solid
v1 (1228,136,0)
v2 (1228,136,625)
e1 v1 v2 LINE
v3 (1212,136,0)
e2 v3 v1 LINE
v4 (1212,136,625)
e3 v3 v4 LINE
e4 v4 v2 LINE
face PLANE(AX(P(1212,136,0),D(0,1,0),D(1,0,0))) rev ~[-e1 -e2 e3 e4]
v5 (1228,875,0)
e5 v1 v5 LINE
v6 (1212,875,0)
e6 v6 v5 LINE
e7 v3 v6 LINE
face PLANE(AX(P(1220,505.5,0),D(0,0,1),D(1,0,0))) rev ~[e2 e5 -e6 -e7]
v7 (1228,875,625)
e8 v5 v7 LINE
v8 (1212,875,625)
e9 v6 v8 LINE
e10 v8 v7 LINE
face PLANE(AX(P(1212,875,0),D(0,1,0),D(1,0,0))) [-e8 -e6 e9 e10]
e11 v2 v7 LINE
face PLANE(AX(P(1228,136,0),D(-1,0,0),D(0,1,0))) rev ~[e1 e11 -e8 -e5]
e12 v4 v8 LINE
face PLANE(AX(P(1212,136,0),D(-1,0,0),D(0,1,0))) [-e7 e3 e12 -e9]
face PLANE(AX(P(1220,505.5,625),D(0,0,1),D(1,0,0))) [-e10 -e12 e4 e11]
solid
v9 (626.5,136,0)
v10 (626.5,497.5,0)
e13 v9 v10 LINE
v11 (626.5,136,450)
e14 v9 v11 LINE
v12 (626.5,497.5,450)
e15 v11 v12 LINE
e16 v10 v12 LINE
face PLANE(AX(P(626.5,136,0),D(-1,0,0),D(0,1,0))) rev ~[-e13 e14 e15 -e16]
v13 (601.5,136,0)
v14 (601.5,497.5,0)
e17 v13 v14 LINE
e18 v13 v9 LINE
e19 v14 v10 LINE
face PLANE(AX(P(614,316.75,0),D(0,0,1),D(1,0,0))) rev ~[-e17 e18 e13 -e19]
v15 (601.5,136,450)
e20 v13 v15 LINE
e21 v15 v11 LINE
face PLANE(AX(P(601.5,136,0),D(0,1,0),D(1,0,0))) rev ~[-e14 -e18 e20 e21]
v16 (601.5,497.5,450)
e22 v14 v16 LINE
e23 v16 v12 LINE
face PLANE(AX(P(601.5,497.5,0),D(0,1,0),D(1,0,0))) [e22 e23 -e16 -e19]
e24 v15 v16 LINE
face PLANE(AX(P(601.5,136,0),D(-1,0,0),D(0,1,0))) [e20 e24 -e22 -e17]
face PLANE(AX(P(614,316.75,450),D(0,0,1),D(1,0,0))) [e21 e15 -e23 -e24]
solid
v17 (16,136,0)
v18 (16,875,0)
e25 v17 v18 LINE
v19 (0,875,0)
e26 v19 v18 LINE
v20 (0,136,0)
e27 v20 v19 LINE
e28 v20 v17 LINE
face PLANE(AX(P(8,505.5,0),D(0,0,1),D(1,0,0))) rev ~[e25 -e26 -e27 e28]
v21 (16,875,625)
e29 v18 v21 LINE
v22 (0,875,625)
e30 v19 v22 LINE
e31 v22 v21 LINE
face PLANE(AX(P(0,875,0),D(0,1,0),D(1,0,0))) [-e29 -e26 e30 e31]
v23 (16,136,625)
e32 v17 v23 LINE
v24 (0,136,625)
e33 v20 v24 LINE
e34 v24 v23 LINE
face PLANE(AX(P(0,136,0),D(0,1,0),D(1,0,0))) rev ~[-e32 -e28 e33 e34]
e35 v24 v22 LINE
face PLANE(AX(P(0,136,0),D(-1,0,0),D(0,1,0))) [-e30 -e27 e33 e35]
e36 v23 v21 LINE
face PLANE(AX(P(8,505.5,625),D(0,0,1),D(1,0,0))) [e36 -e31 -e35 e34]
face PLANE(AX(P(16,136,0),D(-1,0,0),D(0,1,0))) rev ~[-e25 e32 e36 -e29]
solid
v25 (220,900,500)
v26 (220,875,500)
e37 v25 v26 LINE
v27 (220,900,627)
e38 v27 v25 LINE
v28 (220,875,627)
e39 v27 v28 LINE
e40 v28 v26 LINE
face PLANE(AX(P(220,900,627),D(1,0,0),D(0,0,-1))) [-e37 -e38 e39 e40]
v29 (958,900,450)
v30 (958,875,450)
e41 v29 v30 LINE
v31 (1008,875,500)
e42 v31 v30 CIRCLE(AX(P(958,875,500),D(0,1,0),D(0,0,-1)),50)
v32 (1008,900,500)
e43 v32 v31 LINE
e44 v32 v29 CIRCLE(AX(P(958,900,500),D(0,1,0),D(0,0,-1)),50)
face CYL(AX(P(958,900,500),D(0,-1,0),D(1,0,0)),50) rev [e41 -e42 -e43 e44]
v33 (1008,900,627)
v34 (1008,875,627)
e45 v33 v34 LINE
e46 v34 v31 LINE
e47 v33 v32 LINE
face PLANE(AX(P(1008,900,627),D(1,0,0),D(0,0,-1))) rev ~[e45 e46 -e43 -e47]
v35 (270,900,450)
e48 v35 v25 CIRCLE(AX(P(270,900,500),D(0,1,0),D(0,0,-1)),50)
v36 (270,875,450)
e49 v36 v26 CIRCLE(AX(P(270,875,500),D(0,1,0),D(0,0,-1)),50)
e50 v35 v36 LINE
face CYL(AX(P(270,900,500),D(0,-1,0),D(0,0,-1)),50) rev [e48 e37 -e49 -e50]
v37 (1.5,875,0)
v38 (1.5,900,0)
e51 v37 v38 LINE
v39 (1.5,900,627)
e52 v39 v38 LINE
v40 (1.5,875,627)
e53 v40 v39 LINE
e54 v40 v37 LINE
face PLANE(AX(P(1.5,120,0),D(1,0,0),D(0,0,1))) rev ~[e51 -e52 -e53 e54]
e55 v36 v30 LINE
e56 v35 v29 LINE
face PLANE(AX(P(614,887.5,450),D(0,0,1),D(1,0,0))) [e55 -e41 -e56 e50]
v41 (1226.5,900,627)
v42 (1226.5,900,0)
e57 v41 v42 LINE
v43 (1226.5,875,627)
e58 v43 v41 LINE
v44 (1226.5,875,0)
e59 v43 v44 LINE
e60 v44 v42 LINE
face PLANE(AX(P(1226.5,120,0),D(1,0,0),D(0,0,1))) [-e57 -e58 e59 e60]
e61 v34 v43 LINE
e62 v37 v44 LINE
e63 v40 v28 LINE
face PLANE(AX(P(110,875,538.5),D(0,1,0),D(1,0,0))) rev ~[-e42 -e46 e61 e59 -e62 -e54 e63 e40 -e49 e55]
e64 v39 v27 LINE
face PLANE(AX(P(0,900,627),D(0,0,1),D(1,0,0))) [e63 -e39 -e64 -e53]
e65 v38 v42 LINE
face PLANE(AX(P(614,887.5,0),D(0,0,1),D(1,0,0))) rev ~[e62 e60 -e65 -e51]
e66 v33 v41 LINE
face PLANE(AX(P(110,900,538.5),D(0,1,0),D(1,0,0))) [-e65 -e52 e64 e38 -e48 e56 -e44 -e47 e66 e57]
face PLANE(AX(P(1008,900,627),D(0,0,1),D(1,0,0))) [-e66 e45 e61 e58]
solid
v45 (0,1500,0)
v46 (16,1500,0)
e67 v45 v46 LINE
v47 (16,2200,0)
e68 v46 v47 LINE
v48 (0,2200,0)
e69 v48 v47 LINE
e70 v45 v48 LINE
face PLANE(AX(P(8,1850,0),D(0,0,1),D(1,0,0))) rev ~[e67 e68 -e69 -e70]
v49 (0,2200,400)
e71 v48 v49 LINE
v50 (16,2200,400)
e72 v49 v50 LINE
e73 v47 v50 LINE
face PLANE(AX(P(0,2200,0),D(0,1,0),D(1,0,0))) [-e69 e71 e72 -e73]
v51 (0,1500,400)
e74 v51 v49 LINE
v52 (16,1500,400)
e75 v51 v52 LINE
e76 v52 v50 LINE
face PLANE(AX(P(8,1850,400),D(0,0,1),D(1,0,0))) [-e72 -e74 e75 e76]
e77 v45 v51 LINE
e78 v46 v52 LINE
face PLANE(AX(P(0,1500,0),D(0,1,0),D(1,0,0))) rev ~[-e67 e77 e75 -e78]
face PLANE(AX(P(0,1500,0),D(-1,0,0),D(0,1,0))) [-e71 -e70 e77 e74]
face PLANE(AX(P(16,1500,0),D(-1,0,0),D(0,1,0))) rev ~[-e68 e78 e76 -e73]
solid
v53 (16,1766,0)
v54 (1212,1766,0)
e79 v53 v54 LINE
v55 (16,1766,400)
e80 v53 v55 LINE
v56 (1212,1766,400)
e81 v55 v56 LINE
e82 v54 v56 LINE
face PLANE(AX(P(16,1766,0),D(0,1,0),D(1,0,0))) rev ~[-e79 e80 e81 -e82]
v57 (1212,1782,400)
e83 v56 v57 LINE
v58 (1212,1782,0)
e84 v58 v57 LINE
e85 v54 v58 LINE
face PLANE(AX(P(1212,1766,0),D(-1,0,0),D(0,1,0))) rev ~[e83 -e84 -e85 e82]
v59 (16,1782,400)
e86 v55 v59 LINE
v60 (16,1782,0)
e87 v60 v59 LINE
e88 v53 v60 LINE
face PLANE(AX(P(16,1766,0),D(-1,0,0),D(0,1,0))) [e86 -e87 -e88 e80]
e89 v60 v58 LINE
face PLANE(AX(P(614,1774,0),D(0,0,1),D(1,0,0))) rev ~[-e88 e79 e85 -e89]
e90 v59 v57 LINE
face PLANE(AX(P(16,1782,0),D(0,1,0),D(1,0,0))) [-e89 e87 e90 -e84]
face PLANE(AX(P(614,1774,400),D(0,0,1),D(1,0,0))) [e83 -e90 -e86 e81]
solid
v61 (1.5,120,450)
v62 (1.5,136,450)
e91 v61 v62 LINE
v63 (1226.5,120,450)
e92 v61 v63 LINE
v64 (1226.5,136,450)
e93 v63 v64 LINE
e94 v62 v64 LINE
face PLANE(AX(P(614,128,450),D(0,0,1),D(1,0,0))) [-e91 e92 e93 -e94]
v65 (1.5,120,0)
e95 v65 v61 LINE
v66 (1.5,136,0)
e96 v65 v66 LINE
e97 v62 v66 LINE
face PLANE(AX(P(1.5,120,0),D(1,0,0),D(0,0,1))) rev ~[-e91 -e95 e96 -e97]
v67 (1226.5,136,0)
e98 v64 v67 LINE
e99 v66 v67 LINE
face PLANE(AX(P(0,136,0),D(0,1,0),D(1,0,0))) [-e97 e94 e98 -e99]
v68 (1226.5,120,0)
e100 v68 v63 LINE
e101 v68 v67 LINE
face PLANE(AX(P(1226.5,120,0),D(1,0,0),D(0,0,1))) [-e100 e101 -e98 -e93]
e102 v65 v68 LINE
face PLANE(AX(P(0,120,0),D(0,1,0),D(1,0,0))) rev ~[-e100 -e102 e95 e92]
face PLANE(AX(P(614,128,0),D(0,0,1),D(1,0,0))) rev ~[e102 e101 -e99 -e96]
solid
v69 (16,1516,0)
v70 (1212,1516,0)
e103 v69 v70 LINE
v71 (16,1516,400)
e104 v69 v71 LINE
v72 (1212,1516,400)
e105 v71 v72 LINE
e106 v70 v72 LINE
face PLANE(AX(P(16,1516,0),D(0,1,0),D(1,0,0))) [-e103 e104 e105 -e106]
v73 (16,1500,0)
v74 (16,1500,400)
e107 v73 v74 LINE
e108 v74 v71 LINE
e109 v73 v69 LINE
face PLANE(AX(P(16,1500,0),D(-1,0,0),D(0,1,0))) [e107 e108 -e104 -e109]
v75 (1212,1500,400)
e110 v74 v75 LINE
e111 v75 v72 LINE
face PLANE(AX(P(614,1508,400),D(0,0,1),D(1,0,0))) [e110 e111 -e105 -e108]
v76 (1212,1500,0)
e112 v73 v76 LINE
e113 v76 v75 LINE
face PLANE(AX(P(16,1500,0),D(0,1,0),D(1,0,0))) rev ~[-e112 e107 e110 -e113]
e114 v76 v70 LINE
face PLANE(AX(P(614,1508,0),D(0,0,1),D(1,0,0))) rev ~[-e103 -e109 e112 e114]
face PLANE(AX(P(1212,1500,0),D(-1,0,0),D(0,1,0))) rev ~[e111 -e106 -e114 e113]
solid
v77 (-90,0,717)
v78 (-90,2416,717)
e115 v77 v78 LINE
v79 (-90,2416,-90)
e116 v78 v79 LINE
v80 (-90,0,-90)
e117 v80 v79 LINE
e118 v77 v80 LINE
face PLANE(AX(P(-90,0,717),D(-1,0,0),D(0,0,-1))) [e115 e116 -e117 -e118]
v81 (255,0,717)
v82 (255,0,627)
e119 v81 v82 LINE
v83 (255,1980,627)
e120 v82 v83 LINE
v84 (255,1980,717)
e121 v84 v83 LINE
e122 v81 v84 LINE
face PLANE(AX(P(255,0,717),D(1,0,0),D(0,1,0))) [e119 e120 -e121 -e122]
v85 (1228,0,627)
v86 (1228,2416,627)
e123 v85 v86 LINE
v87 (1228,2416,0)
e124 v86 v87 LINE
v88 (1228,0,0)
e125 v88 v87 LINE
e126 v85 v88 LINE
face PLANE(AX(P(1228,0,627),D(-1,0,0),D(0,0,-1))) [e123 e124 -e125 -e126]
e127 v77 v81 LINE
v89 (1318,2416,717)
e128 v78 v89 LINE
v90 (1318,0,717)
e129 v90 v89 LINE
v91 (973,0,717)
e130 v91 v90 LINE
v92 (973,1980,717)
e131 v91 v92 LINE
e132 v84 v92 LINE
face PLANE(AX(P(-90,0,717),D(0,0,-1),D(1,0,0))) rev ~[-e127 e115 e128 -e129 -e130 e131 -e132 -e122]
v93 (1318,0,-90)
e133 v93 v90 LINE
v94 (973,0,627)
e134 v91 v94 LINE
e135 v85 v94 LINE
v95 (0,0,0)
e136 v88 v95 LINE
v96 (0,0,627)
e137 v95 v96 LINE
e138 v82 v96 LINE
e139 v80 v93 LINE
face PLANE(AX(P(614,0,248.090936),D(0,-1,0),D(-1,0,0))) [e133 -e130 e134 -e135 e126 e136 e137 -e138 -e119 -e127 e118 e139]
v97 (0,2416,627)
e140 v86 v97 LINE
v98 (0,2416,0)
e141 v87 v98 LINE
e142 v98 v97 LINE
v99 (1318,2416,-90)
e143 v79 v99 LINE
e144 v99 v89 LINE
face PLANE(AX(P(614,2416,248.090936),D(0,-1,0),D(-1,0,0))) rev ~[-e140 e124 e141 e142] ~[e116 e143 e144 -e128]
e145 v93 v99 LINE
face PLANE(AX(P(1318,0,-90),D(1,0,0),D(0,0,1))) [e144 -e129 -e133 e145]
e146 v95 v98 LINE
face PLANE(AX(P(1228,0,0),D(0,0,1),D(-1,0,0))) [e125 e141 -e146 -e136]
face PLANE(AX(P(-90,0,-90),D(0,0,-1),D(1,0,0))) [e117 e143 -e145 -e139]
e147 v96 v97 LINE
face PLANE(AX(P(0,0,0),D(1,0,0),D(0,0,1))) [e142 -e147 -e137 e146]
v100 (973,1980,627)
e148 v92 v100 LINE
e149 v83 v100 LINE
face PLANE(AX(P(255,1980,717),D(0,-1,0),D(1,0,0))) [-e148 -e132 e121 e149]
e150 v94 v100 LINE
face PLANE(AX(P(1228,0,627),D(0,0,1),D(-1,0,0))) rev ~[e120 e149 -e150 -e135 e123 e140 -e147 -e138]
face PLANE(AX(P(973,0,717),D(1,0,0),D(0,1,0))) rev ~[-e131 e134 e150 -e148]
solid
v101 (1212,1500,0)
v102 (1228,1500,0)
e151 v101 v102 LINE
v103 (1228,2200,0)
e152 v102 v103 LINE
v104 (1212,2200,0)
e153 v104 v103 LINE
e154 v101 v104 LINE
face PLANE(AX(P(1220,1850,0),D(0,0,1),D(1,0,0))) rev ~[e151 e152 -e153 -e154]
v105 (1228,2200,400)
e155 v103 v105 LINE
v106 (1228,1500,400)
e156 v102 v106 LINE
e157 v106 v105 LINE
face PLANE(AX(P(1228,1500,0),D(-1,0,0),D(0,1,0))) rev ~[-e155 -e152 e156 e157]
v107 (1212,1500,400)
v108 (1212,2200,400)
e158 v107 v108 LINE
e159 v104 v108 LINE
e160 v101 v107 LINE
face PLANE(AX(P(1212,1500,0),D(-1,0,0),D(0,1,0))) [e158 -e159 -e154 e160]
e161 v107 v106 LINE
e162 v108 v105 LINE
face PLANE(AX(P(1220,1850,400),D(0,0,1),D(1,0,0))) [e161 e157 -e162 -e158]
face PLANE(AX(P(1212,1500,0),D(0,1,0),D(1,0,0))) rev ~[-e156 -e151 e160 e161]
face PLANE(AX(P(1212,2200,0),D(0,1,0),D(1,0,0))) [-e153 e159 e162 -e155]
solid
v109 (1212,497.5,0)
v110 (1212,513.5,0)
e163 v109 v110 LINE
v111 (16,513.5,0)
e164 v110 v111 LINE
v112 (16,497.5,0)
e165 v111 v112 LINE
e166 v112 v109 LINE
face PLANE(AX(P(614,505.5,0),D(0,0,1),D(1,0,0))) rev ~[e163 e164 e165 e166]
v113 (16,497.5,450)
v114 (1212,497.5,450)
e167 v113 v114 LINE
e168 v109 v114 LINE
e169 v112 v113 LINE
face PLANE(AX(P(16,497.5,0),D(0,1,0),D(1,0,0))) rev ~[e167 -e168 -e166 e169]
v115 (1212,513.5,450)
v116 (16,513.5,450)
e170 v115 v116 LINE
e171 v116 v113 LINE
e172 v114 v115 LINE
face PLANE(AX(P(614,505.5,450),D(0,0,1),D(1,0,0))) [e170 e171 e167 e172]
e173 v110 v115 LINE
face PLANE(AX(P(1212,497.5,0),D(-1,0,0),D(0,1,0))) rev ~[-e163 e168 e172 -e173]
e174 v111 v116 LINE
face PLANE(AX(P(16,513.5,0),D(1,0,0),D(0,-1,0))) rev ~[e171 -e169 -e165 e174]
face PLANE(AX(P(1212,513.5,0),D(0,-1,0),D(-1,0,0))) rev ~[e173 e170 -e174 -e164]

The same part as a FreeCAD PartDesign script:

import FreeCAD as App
import Part
import Sketcher

V = App.Vector
Q = App.Units.Quantity


def edges_at(feature, points):
    """Names of the edges that pass closest to the given points."""
    edges = feature.Shape.Edges
    near = lambda p: min(range(len(edges)), key=lambda i: edges[i].distToShape(Part.Vertex(*p))[0])
    return sorted({f"Edge{near(p) + 1}" for p in points})

doc = App.newDocument("Part")
params = doc.addObject("Spreadsheet::Sheet", "Params")
for row, (alias, value) in enumerate([
    ("sketch1_width", "1408 mm"),
    ("sketch1_width2", "1228 mm"),
    ("sketch1_height", "807 mm"),
    ("sketch1_height2", "627 mm"),
    ("pad1_length", "2416 mm"),
    ("sketch2_width", "718 mm"),
    ("sketch2_height", "1980 mm"),
    ("pocket1_length", "100 mm"),
    ("sketch3_width", "16 mm"),
    ("sketch3_height", "739 mm"),
    ("pad2_length", "625 mm"),
    ("sketch4_width", "16 mm"),
    ("sketch4_height", "739 mm"),
    ("pad3_length", "625 mm"),
    ("sketch5_width", "25 mm"),
    ("sketch5_height", "361.5 mm"),
    ("pad4_length", "625 mm"),
    ("sketch6_width", "25 mm"),
    ("sketch6_height", "361.5 mm"),
    ("pocket2_length", "175 mm"),
    ("sketch7_width", "1228 mm"),
    ("sketch7_height", "16 mm"),
    ("pad5_length", "450 mm"),
    ("sketch8_width", "1196 mm"),
    ("sketch8_height", "16 mm"),
    ("pad6_length", "450 mm"),
    ("sketch9_width", "1228 mm"),
    ("sketch9_height", "25 mm"),
    ("pad7_length", "450 mm"),
    ("sketch10_width", "220 mm"),
    ("sketch10_height", "177 mm"),
    ("pad8_length", "25 mm"),
    ("fillet_radius", "50 mm"),
    ("sketch11_width", "16 mm"),
    ("sketch11_height", "700 mm"),
    ("pad9_length", "400 mm"),
    ("sketch12_width", "16 mm"),
    ("sketch12_height", "700 mm"),
    ("pad10_length", "400 mm"),
    ("sketch13_width", "1196 mm"),
    ("sketch13_height", "16 mm"),
    ("pad11_length", "400 mm"),
    ("sketch14_width", "1196 mm"),
    ("sketch14_height", "16 mm"),
    ("pad12_length", "400 mm"),
    ("sketch15_height", "627 mm"),
    ("sketch15_width", "1.5 mm"),
    ("pad13_length", "2743.777607 mm"),
], start=1):
    params.set(f"A{row}", alias)
    params.set(f"B{row}", "=" + value)
    params.setAlias(f"B{row}", alias)

body = doc.addObject("PartDesign::Body", "Body")

sketch1 = body.newObject("Sketcher::SketchObject", "Sketch")
sketch1.AttachmentSupport = (doc.getObject("XZ_Plane"), [""])
sketch1.MapMode = "FlatFace"
sketch1.addGeometry([
    Part.LineSegment(V(-90, 717, 0), V(1318, 717, 0)),
    Part.LineSegment(V(1318, 717, 0), V(1318, -90, 0)),
    Part.LineSegment(V(1318, -90, 0), V(-90, -90, 0)),
    Part.LineSegment(V(-90, -90, 0), V(-90, 717, 0)),
    Part.LineSegment(V(1228, 627, 0), V(0, 627, 0)),
    Part.LineSegment(V(0, 627, 0), V(0, 0, 0)),
    Part.LineSegment(V(0, 0, 0), V(1228, 0, 0)),
    Part.LineSegment(V(1228, 0, 0), V(1228, 627, 0)),
], False)
sketch1.addConstraint([
    Sketcher.Constraint("Coincident", 0, 2, 1, 1),
    Sketcher.Constraint("Coincident", 1, 2, 2, 1),
    Sketcher.Constraint("Coincident", 2, 2, 3, 1),
    Sketcher.Constraint("Coincident", 3, 2, 0, 1),
    Sketcher.Constraint("Coincident", 4, 2, 5, 1),
    Sketcher.Constraint("Coincident", 5, 2, 6, 1),
    Sketcher.Constraint("Coincident", 6, 2, 7, 1),
    Sketcher.Constraint("Coincident", 7, 2, 4, 1),
    Sketcher.Constraint("Horizontal", 0),
    Sketcher.Constraint("Vertical", 1),
    Sketcher.Constraint("Horizontal", 2),
    Sketcher.Constraint("Vertical", 3),
    Sketcher.Constraint("Horizontal", 4),
    Sketcher.Constraint("Vertical", 5),
    Sketcher.Constraint("Horizontal", 6),
    Sketcher.Constraint("Vertical", 7),
    Sketcher.Constraint("Coincident", 5, 2, -1, 1),
    Sketcher.Constraint("DistanceX", 0, 1, 0, 2, Q("1408 mm")),
    Sketcher.Constraint("DistanceX", 4, 2, 4, 1, Q("1228 mm")),
    Sketcher.Constraint("DistanceY", 1, 2, 1, 1, Q("807 mm")),
    Sketcher.Constraint("DistanceY", 5, 2, 5, 1, Q("627 mm")),
    Sketcher.Constraint("DistanceX", -1, 1, 0, 2, Q("1318 mm")),
    Sketcher.Constraint("DistanceY", -1, 1, 0, 2, Q("717 mm")),
])
sketch1.setExpression("Constraints[17]", "Params.sketch1_width")
sketch1.setExpression("Constraints[18]", "Params.sketch1_width2")
sketch1.setExpression("Constraints[19]", "Params.sketch1_height")
sketch1.setExpression("Constraints[20]", "Params.sketch1_height2")
pad1 = body.newObject("PartDesign::Pad", "Pad")
pad1.Profile = sketch1
pad1.setExpression("Length", "Params.pad1_length")
pad1.Reversed = True

sketch2 = body.newObject("Sketcher::SketchObject", "Sketch001")
sketch2.AttachmentSupport = (doc.getObject("XY_Plane"), [""])
sketch2.MapMode = "FlatFace"
sketch2.AttachmentOffset = App.Placement(V(0, 0, 717), App.Rotation())
sketch2.addGeometry([
    Part.LineSegment(V(255, 1980, 0), V(255, 0, 0)),
    Part.LineSegment(V(255, 0, 0), V(973, 0, 0)),
    Part.LineSegment(V(973, 0, 0), V(973, 1980, 0)),
    Part.LineSegment(V(973, 1980, 0), V(255, 1980, 0)),
], False)
sketch2.addConstraint([
    Sketcher.Constraint("Coincident", 0, 2, 1, 1),
    Sketcher.Constraint("Coincident", 1, 2, 2, 1),
    Sketcher.Constraint("Coincident", 2, 2, 3, 1),
    Sketcher.Constraint("Coincident", 3, 2, 0, 1),
    Sketcher.Constraint("Vertical", 0),
    Sketcher.Constraint("Horizontal", 1),
    Sketcher.Constraint("Vertical", 2),
    Sketcher.Constraint("Horizontal", 3),
    Sketcher.Constraint("PointOnObject", 0, 2, -1),
    Sketcher.Constraint("DistanceX", 1, 1, 1, 2, Q("718 mm")),
    Sketcher.Constraint("DistanceY", 0, 2, 0, 1, Q("1980 mm")),
    Sketcher.Constraint("DistanceX", -1, 1, 0, 2, Q("255 mm")),
])
sketch2.setExpression("Constraints[9]", "Params.sketch2_width")
sketch2.setExpression("Constraints[10]", "Params.sketch2_height")
pocket1 = body.newObject("PartDesign::Pocket", "Pocket")
pocket1.Profile = sketch2
pocket1.setExpression("Length", "Params.pocket1_length")
body2 = doc.addObject("PartDesign::Body", "Body001")

sketch3 = body2.newObject("Sketcher::SketchObject", "Sketch002")
sketch3.AttachmentSupport = (doc.getObject("XY_Plane001"), [""])
sketch3.MapMode = "FlatFace"
sketch3.addGeometry([
    Part.LineSegment(V(0, 875, 0), V(0, 136, 0)),
    Part.LineSegment(V(0, 136, 0), V(16, 136, 0)),
    Part.LineSegment(V(16, 136, 0), V(16, 875, 0)),
    Part.LineSegment(V(16, 875, 0), V(0, 875, 0)),
], False)
sketch3.addConstraint([
    Sketcher.Constraint("Coincident", 0, 2, 1, 1),
    Sketcher.Constraint("Coincident", 1, 2, 2, 1),
    Sketcher.Constraint("Coincident", 2, 2, 3, 1),
    Sketcher.Constraint("Coincident", 3, 2, 0, 1),
    Sketcher.Constraint("Vertical", 0),
    Sketcher.Constraint("Horizontal", 1),
    Sketcher.Constraint("Vertical", 2),
    Sketcher.Constraint("Horizontal", 3),
    Sketcher.Constraint("PointOnObject", 0, 2, -2),
    Sketcher.Constraint("DistanceX", 1, 1, 1, 2, Q("16 mm")),
    Sketcher.Constraint("DistanceY", 0, 2, 0, 1, Q("739 mm")),
    Sketcher.Constraint("DistanceY", -1, 1, 0, 2, Q("136 mm")),
])
sketch3.setExpression("Constraints[9]", "Params.sketch3_width")
sketch3.setExpression("Constraints[10]", "Params.sketch3_height")
pad2 = body2.newObject("PartDesign::Pad", "Pad001")
pad2.Profile = sketch3
pad2.setExpression("Length", "Params.pad2_length")
body3 = doc.addObject("PartDesign::Body", "Body002")

sketch4 = body3.newObject("Sketcher::SketchObject", "Sketch003")
sketch4.AttachmentSupport = (doc.getObject("XY_Plane002"), [""])
sketch4.MapMode = "FlatFace"
sketch4.addGeometry([
    Part.LineSegment(V(1212, 875, 0), V(1212, 136, 0)),
    Part.LineSegment(V(1212, 136, 0), V(1228, 136, 0)),
    Part.LineSegment(V(1228, 136, 0), V(1228, 875, 0)),
    Part.LineSegment(V(1228, 875, 0), V(1212, 875, 0)),
], False)
sketch4.addConstraint([
    Sketcher.Constraint("Coincident", 0, 2, 1, 1),
    Sketcher.Constraint("Coincident", 1, 2, 2, 1),
    Sketcher.Constraint("Coincident", 2, 2, 3, 1),
    Sketcher.Constraint("Coincident", 3, 2, 0, 1),
    Sketcher.Constraint("Vertical", 0),
    Sketcher.Constraint("Horizontal", 1),
    Sketcher.Constraint("Vertical", 2),
    Sketcher.Constraint("Horizontal", 3),
    Sketcher.Constraint("DistanceX", 1, 1, 1, 2, Q("16 mm")),
    Sketcher.Constraint("DistanceY", 0, 2, 0, 1, Q("739 mm")),
    Sketcher.Constraint("DistanceX", -1, 1, 0, 2, Q("1212 mm")),
    Sketcher.Constraint("DistanceY", -1, 1, 0, 2, Q("136 mm")),
])
sketch4.setExpression("Constraints[8]", "Params.sketch4_width")
sketch4.setExpression("Constraints[9]", "Params.sketch4_height")
pad3 = body3.newObject("PartDesign::Pad", "Pad002")
pad3.Profile = sketch4
pad3.setExpression("Length", "Params.pad3_length")
body4 = doc.addObject("PartDesign::Body", "Body003")

sketch5 = body4.newObject("Sketcher::SketchObject", "Sketch004")
sketch5.AttachmentSupport = (doc.getObject("XY_Plane003"), [""])
sketch5.MapMode = "FlatFace"
sketch5.addGeometry([
    Part.LineSegment(V(602, 498, 0), V(602, 136, 0)),
    Part.LineSegment(V(602, 136, 0), V(626, 136, 0)),
    Part.LineSegment(V(626, 136, 0), V(626, 498, 0)),
    Part.LineSegment(V(626, 498, 0), V(602, 498, 0)),
], False)
sketch5.addConstraint([
    Sketcher.Constraint("Coincident", 0, 2, 1, 1),
    Sketcher.Constraint("Coincident", 1, 2, 2, 1),
    Sketcher.Constraint("Coincident", 2, 2, 3, 1),
    Sketcher.Constraint("Coincident", 3, 2, 0, 1),
    Sketcher.Constraint("Vertical", 0),
    Sketcher.Constraint("Horizontal", 1),
    Sketcher.Constraint("Vertical", 2),
    Sketcher.Constraint("Horizontal", 3),
    Sketcher.Constraint("DistanceX", 1, 1, 1, 2, Q("25 mm")),
    Sketcher.Constraint("DistanceY", 0, 2, 0, 1, Q("361.5 mm")),
    Sketcher.Constraint("DistanceY", -1, 1, 0, 2, Q("136 mm")),
    Sketcher.Constraint("DistanceX", -1, 1, 0, 2, Q("601.5 mm")),
])
sketch5.setExpression("Constraints[8]", "Params.sketch5_width")
sketch5.setExpression("Constraints[9]", "Params.sketch5_height")
pad4 = body4.newObject("PartDesign::Pad", "Pad003")
pad4.Profile = sketch5
pad4.setExpression("Length", "Params.pad4_length")

sketch6 = body4.newObject("Sketcher::SketchObject", "Sketch005")
sketch6.AttachmentSupport = (doc.getObject("XY_Plane003"), [""])
sketch6.MapMode = "FlatFace"
sketch6.AttachmentOffset = App.Placement(V(0, 0, 625), App.Rotation())
sketch6.addGeometry([
    Part.LineSegment(V(602, 498, 0), V(602, 136, 0)),
    Part.LineSegment(V(602, 136, 0), V(626, 136, 0)),
    Part.LineSegment(V(626, 136, 0), V(626, 498, 0)),
    Part.LineSegment(V(626, 498, 0), V(602, 498, 0)),
], False)
sketch6.addConstraint([
    Sketcher.Constraint("Coincident", 0, 2, 1, 1),
    Sketcher.Constraint("Coincident", 1, 2, 2, 1),
    Sketcher.Constraint("Coincident", 2, 2, 3, 1),
    Sketcher.Constraint("Coincident", 3, 2, 0, 1),
    Sketcher.Constraint("Vertical", 0),
    Sketcher.Constraint("Horizontal", 1),
    Sketcher.Constraint("Vertical", 2),
    Sketcher.Constraint("Horizontal", 3),
    Sketcher.Constraint("DistanceX", 1, 1, 1, 2, Q("25 mm")),
    Sketcher.Constraint("DistanceY", 0, 2, 0, 1, Q("361.5 mm")),
    Sketcher.Constraint("DistanceY", -1, 1, 0, 2, Q("136 mm")),
    Sketcher.Constraint("DistanceX", -1, 1, 0, 2, Q("601.5 mm")),
])
sketch6.setExpression("Constraints[8]", "Params.sketch6_width")
sketch6.setExpression("Constraints[9]", "Params.sketch6_height")
pocket2 = body4.newObject("PartDesign::Pocket", "Pocket001")
pocket2.Profile = sketch6
pocket2.setExpression("Length", "Params.pocket2_length")
body5 = doc.addObject("PartDesign::Body", "Body004")

sketch7 = body5.newObject("Sketcher::SketchObject", "Sketch006")
sketch7.AttachmentSupport = (doc.getObject("XY_Plane004"), [""])
sketch7.MapMode = "FlatFace"
sketch7.addGeometry([
    Part.LineSegment(V(0, 136, 0), V(0, 120, 0)),
    Part.LineSegment(V(0, 120, 0), V(1228, 120, 0)),
    Part.LineSegment(V(1228, 120, 0), V(1228, 136, 0)),
    Part.LineSegment(V(1228, 136, 0), V(0, 136, 0)),
], False)
sketch7.addConstraint([
    Sketcher.Constraint("Coincident", 0, 2, 1, 1),
    Sketcher.Constraint("Coincident", 1, 2, 2, 1),
    Sketcher.Constraint("Coincident", 2, 2, 3, 1),
    Sketcher.Constraint("Coincident", 3, 2, 0, 1),
    Sketcher.Constraint("Vertical", 0),
    Sketcher.Constraint("Horizontal", 1),
    Sketcher.Constraint("Vertical", 2),
    Sketcher.Constraint("Horizontal", 3),
    Sketcher.Constraint("PointOnObject", 0, 2, -2),
    Sketcher.Constraint("DistanceX", 1, 1, 1, 2, Q("1228 mm")),
    Sketcher.Constraint("DistanceY", 0, 2, 0, 1, Q("16 mm")),
    Sketcher.Constraint("DistanceY", -1, 1, 0, 2, Q("120 mm")),
])
sketch7.setExpression("Constraints[9]", "Params.sketch7_width")
sketch7.setExpression("Constraints[10]", "Params.sketch7_height")
pad5 = body5.newObject("PartDesign::Pad", "Pad004")
pad5.Profile = sketch7
pad5.setExpression("Length", "Params.pad5_length")
body6 = doc.addObject("PartDesign::Body", "Body005")

sketch8 = body6.newObject("Sketcher::SketchObject", "Sketch007")
sketch8.AttachmentSupport = (doc.getObject("XY_Plane005"), [""])
sketch8.MapMode = "FlatFace"
sketch8.addGeometry([
    Part.LineSegment(V(16, 498, 0), V(1212, 498, 0)),
    Part.LineSegment(V(1212, 498, 0), V(1212, 514, 0)),
    Part.LineSegment(V(1212, 514, 0), V(16, 514, 0)),
    Part.LineSegment(V(16, 514, 0), V(16, 498, 0)),
], False)
sketch8.addConstraint([
    Sketcher.Constraint("Coincident", 0, 2, 1, 1),
    Sketcher.Constraint("Coincident", 1, 2, 2, 1),
    Sketcher.Constraint("Coincident", 2, 2, 3, 1),
    Sketcher.Constraint("Coincident", 3, 2, 0, 1),
    Sketcher.Constraint("Horizontal", 0),
    Sketcher.Constraint("Vertical", 1),
    Sketcher.Constraint("Horizontal", 2),
    Sketcher.Constraint("Vertical", 3),
    Sketcher.Constraint("DistanceX", 0, 1, 0, 2, Q("1196 mm")),
    Sketcher.Constraint("DistanceY", 1, 1, 1, 2, Q("16 mm")),
    Sketcher.Constraint("DistanceX", -1, 1, 0, 2, Q("1212 mm")),
    Sketcher.Constraint("DistanceY", -1, 1, 0, 2, Q("497.5 mm")),
])
sketch8.setExpression("Constraints[8]", "Params.sketch8_width")
sketch8.setExpression("Constraints[9]", "Params.sketch8_height")
pad6 = body6.newObject("PartDesign::Pad", "Pad005")
pad6.Profile = sketch8
pad6.setExpression("Length", "Params.pad6_length")
body7 = doc.addObject("PartDesign::Body", "Body006")

sketch9 = body7.newObject("Sketcher::SketchObject", "Sketch008")
sketch9.AttachmentSupport = (doc.getObject("XY_Plane006"), [""])
sketch9.MapMode = "FlatFace"
sketch9.addGeometry([
    Part.LineSegment(V(0, 900, 0), V(0, 875, 0)),
    Part.LineSegment(V(0, 875, 0), V(1228, 875, 0)),
    Part.LineSegment(V(1228, 875, 0), V(1228, 900, 0)),
    Part.LineSegment(V(1228, 900, 0), V(0, 900, 0)),
], False)
sketch9.addConstraint([
    Sketcher.Constraint("Coincident", 0, 2, 1, 1),
    Sketcher.Constraint("Coincident", 1, 2, 2, 1),
    Sketcher.Constraint("Coincident", 2, 2, 3, 1),
    Sketcher.Constraint("Coincident", 3, 2, 0, 1),
    Sketcher.Constraint("Vertical", 0),
    Sketcher.Constraint("Horizontal", 1),
    Sketcher.Constraint("Vertical", 2),
    Sketcher.Constraint("Horizontal", 3),
    Sketcher.Constraint("PointOnObject", 0, 2, -2),
    Sketcher.Constraint("DistanceX", 1, 1, 1, 2, Q("1228 mm")),
    Sketcher.Constraint("DistanceY", 0, 2, 0, 1, Q("25 mm")),
    Sketcher.Constraint("DistanceY", -1, 1, 0, 2, Q("875 mm")),
])
sketch9.setExpression("Constraints[9]", "Params.sketch9_width")
sketch9.setExpression("Constraints[10]", "Params.sketch9_height")
pad7 = body7.newObject("PartDesign::Pad", "Pad006")
pad7.Profile = sketch9
pad7.setExpression("Length", "Params.pad7_length")

sketch10 = body7.newObject("Sketcher::SketchObject", "Sketch009")
sketch10.AttachmentSupport = (doc.getObject("XZ_Plane006"), [""])
sketch10.MapMode = "FlatFace"
sketch10.AttachmentOffset = App.Placement(V(0, 0, -900), App.Rotation())
sketch10.addGeometry([
    Part.LineSegment(V(0, 450, 0), V(0, 627, 0)),
    Part.LineSegment(V(0, 627, 0), V(220, 627, 0)),
    Part.LineSegment(V(220, 627, 0), V(220, 450, 0)),
    Part.LineSegment(V(220, 450, 0), V(0, 450, 0)),
    Part.LineSegment(V(1008, 450, 0), V(1008, 627, 0)),
    Part.LineSegment(V(1008, 627, 0), V(1228, 627, 0)),
    Part.LineSegment(V(1228, 627, 0), V(1228, 450, 0)),
    Part.LineSegment(V(1228, 450, 0), V(1008, 450, 0)),
], False)
sketch10.addConstraint([
    Sketcher.Constraint("Coincident", 0, 2, 1, 1),
    Sketcher.Constraint("Coincident", 1, 2, 2, 1),
    Sketcher.Constraint("Coincident", 2, 2, 3, 1),
    Sketcher.Constraint("Coincident", 3, 2, 0, 1),
    Sketcher.Constraint("Coincident", 4, 2, 5, 1),
    Sketcher.Constraint("Coincident", 5, 2, 6, 1),
    Sketcher.Constraint("Coincident", 6, 2, 7, 1),
    Sketcher.Constraint("Coincident", 7, 2, 4, 1),
    Sketcher.Constraint("Vertical", 0),
    Sketcher.Constraint("Horizontal", 1),
    Sketcher.Constraint("Vertical", 2),
    Sketcher.Constraint("Horizontal", 3),
    Sketcher.Constraint("Vertical", 4),
    Sketcher.Constraint("Horizontal", 5),
    Sketcher.Constraint("Vertical", 6),
    Sketcher.Constraint("Horizontal", 7),
    Sketcher.Constraint("PointOnObject", 0, 2, -2),
    Sketcher.Constraint("Horizontal", 1, 2, 4, 2),
    Sketcher.Constraint("Horizontal", 3, 2, 6, 2),
    Sketcher.Constraint("Equal", 3, 5),
    Sketcher.Constraint("DistanceX", 1, 1, 1, 2, Q("220 mm")),
    Sketcher.Constraint("DistanceY", 0, 1, 0, 2, Q("177 mm")),
    Sketcher.Constraint("DistanceY", -1, 1, 0, 2, Q("627 mm")),
    Sketcher.Constraint("DistanceX", -1, 1, 4, 2, Q("1008 mm")),
])
sketch10.setExpression("Constraints[20]", "Params.sketch10_width")
sketch10.setExpression("Constraints[21]", "Params.sketch10_height")
pad8 = body7.newObject("PartDesign::Pad", "Pad007")
pad8.Profile = sketch10
pad8.setExpression("Length", "Params.pad8_length")
doc.recompute()

fillet = body7.newObject("PartDesign::Fillet", "Fillet")
fillet.Base = (pad8, edges_at(pad8, [(220, 887.5, 450), (1008, 887.5, 450)]))
fillet.setExpression("Radius", "Params.fillet_radius")
body8 = doc.addObject("PartDesign::Body", "Body007")

sketch11 = body8.newObject("Sketcher::SketchObject", "Sketch010")
sketch11.AttachmentSupport = (doc.getObject("XY_Plane007"), [""])
sketch11.MapMode = "FlatFace"
sketch11.addGeometry([
    Part.LineSegment(V(0, 2200, 0), V(0, 1500, 0)),
    Part.LineSegment(V(0, 1500, 0), V(16, 1500, 0)),
    Part.LineSegment(V(16, 1500, 0), V(16, 2200, 0)),
    Part.LineSegment(V(16, 2200, 0), V(0, 2200, 0)),
], False)
sketch11.addConstraint([
    Sketcher.Constraint("Coincident", 0, 2, 1, 1),
    Sketcher.Constraint("Coincident", 1, 2, 2, 1),
    Sketcher.Constraint("Coincident", 2, 2, 3, 1),
    Sketcher.Constraint("Coincident", 3, 2, 0, 1),
    Sketcher.Constraint("Vertical", 0),
    Sketcher.Constraint("Horizontal", 1),
    Sketcher.Constraint("Vertical", 2),
    Sketcher.Constraint("Horizontal", 3),
    Sketcher.Constraint("PointOnObject", 0, 2, -2),
    Sketcher.Constraint("DistanceX", 1, 1, 1, 2, Q("16 mm")),
    Sketcher.Constraint("DistanceY", 0, 2, 0, 1, Q("700 mm")),
    Sketcher.Constraint("DistanceY", -1, 1, 0, 2, Q("1500 mm")),
])
sketch11.setExpression("Constraints[9]", "Params.sketch11_width")
sketch11.setExpression("Constraints[10]", "Params.sketch11_height")
pad9 = body8.newObject("PartDesign::Pad", "Pad008")
pad9.Profile = sketch11
pad9.setExpression("Length", "Params.pad9_length")
body9 = doc.addObject("PartDesign::Body", "Body008")

sketch12 = body9.newObject("Sketcher::SketchObject", "Sketch011")
sketch12.AttachmentSupport = (doc.getObject("XY_Plane008"), [""])
sketch12.MapMode = "FlatFace"
sketch12.addGeometry([
    Part.LineSegment(V(1212, 2200, 0), V(1212, 1500, 0)),
    Part.LineSegment(V(1212, 1500, 0), V(1228, 1500, 0)),
    Part.LineSegment(V(1228, 1500, 0), V(1228, 2200, 0)),
    Part.LineSegment(V(1228, 2200, 0), V(1212, 2200, 0)),
], False)
sketch12.addConstraint([
    Sketcher.Constraint("Coincident", 0, 2, 1, 1),
    Sketcher.Constraint("Coincident", 1, 2, 2, 1),
    Sketcher.Constraint("Coincident", 2, 2, 3, 1),
    Sketcher.Constraint("Coincident", 3, 2, 0, 1),
    Sketcher.Constraint("Vertical", 0),
    Sketcher.Constraint("Horizontal", 1),
    Sketcher.Constraint("Vertical", 2),
    Sketcher.Constraint("Horizontal", 3),
    Sketcher.Constraint("DistanceX", 1, 1, 1, 2, Q("16 mm")),
    Sketcher.Constraint("DistanceY", 0, 2, 0, 1, Q("700 mm")),
    Sketcher.Constraint("DistanceX", -1, 1, 0, 2, Q("1212 mm")),
    Sketcher.Constraint("DistanceY", -1, 1, 0, 2, Q("1500 mm")),
])
sketch12.setExpression("Constraints[8]", "Params.sketch12_width")
sketch12.setExpression("Constraints[9]", "Params.sketch12_height")
pad10 = body9.newObject("PartDesign::Pad", "Pad009")
pad10.Profile = sketch12
pad10.setExpression("Length", "Params.pad10_length")
body10 = doc.addObject("PartDesign::Body", "Body009")

sketch13 = body10.newObject("Sketcher::SketchObject", "Sketch012")
sketch13.AttachmentSupport = (doc.getObject("XY_Plane009"), [""])
sketch13.MapMode = "FlatFace"
sketch13.addGeometry([
    Part.LineSegment(V(16, 1782, 0), V(16, 1766, 0)),
    Part.LineSegment(V(16, 1766, 0), V(1212, 1766, 0)),
    Part.LineSegment(V(1212, 1766, 0), V(1212, 1782, 0)),
    Part.LineSegment(V(1212, 1782, 0), V(16, 1782, 0)),
], False)
sketch13.addConstraint([
    Sketcher.Constraint("Coincident", 0, 2, 1, 1),
    Sketcher.Constraint("Coincident", 1, 2, 2, 1),
    Sketcher.Constraint("Coincident", 2, 2, 3, 1),
    Sketcher.Constraint("Coincident", 3, 2, 0, 1),
    Sketcher.Constraint("Vertical", 0),
    Sketcher.Constraint("Horizontal", 1),
    Sketcher.Constraint("Vertical", 2),
    Sketcher.Constraint("Horizontal", 3),
    Sketcher.Constraint("DistanceX", 1, 1, 1, 2, Q("1196 mm")),
    Sketcher.Constraint("DistanceY", 0, 2, 0, 1, Q("16 mm")),
    Sketcher.Constraint("DistanceX", -1, 1, 0, 2, Q("16 mm")),
    Sketcher.Constraint("DistanceY", -1, 1, 0, 2, Q("1766 mm")),
])
sketch13.setExpression("Constraints[8]", "Params.sketch13_width")
sketch13.setExpression("Constraints[9]", "Params.sketch13_height")
pad11 = body10.newObject("PartDesign::Pad", "Pad010")
pad11.Profile = sketch13
pad11.setExpression("Length", "Params.pad11_length")
body11 = doc.addObject("PartDesign::Body", "Body010")

sketch14 = body11.newObject("Sketcher::SketchObject", "Sketch013")
sketch14.AttachmentSupport = (doc.getObject("XY_Plane010"), [""])
sketch14.MapMode = "FlatFace"
sketch14.addGeometry([
    Part.LineSegment(V(16, 1516, 0), V(16, 1500, 0)),
    Part.LineSegment(V(16, 1500, 0), V(1212, 1500, 0)),
    Part.LineSegment(V(1212, 1500, 0), V(1212, 1516, 0)),
    Part.LineSegment(V(1212, 1516, 0), V(16, 1516, 0)),
], False)
sketch14.addConstraint([
    Sketcher.Constraint("Coincident", 0, 2, 1, 1),
    Sketcher.Constraint("Coincident", 1, 2, 2, 1),
    Sketcher.Constraint("Coincident", 2, 2, 3, 1),
    Sketcher.Constraint("Coincident", 3, 2, 0, 1),
    Sketcher.Constraint("Vertical", 0),
    Sketcher.Constraint("Horizontal", 1),
    Sketcher.Constraint("Vertical", 2),
    Sketcher.Constraint("Horizontal", 3),
    Sketcher.Constraint("DistanceX", 1, 1, 1, 2, Q("1196 mm")),
    Sketcher.Constraint("DistanceY", 0, 2, 0, 1, Q("16 mm")),
    Sketcher.Constraint("DistanceX", -1, 1, 0, 2, Q("16 mm")),
    Sketcher.Constraint("DistanceY", -1, 1, 0, 2, Q("1500 mm")),
])
sketch14.setExpression("Constraints[8]", "Params.sketch14_width")
sketch14.setExpression("Constraints[9]", "Params.sketch14_height")
pad12 = body11.newObject("PartDesign::Pad", "Pad011")
pad12.Profile = sketch14
pad12.setExpression("Length", "Params.pad12_length")
body12 = doc.addObject("PartDesign::Body", "Body011")
body12.AllowCompound = True

sketch15 = body12.newObject("Sketcher::SketchObject", "Sketch014")
sketch15.AttachmentSupport = (doc.getObject("XZ_Plane011"), [""])
sketch15.MapMode = "FlatFace"
sketch15.AttachmentOffset = App.Placement(V(0, 0, -120), App.Rotation())
sketch15.addGeometry([
    Part.LineSegment(V(0, 627, 0), V(0, 0, 0)),
    Part.LineSegment(V(0, 0, 0), V(1.5, 0, 0)),
    Part.LineSegment(V(1.5, 0, 0), V(1.5, 627, 0)),
    Part.LineSegment(V(1.5, 627, 0), V(0, 627, 0)),
    Part.LineSegment(V(1226.5, 627, 0), V(1226.5, 0, 0)),
    Part.LineSegment(V(1226.5, 0, 0), V(1228, 0, 0)),
    Part.LineSegment(V(1228, 0, 0), V(1228, 627, 0)),
    Part.LineSegment(V(1228, 627, 0), V(1226.5, 627, 0)),
], False)
sketch15.addConstraint([
    Sketcher.Constraint("Coincident", 0, 2, 1, 1),
    Sketcher.Constraint("Coincident", 1, 2, 2, 1),
    Sketcher.Constraint("Coincident", 2, 2, 3, 1),
    Sketcher.Constraint("Coincident", 3, 2, 0, 1),
    Sketcher.Constraint("Coincident", 4, 2, 5, 1),
    Sketcher.Constraint("Coincident", 5, 2, 6, 1),
    Sketcher.Constraint("Coincident", 6, 2, 7, 1),
    Sketcher.Constraint("Coincident", 7, 2, 4, 1),
    Sketcher.Constraint("Vertical", 0),
    Sketcher.Constraint("Horizontal", 1),
    Sketcher.Constraint("Vertical", 2),
    Sketcher.Constraint("Horizontal", 3),
    Sketcher.Constraint("Vertical", 4),
    Sketcher.Constraint("Horizontal", 5),
    Sketcher.Constraint("Vertical", 6),
    Sketcher.Constraint("Horizontal", 7),
    Sketcher.Constraint("Coincident", 0, 2, -1, 1),
    Sketcher.Constraint("PointOnObject", 4, 2, -1),
    Sketcher.Constraint("Horizontal", 3, 2, 6, 2),
    Sketcher.Constraint("Equal", 3, 5),
    Sketcher.Constraint("DistanceY", 0, 2, 0, 1, Q("627 mm")),
    Sketcher.Constraint("DistanceX", 1, 1, 1, 2, Q("1.5 mm")),
    Sketcher.Constraint("DistanceX", -1, 1, 5, 2, Q("1228 mm")),
])
sketch15.setExpression("Constraints[20]", "Params.sketch15_height")
sketch15.setExpression("Constraints[21]", "Params.sketch15_width")
pad13 = body12.newObject("PartDesign::Pad", "Pad012")
pad13.Profile = sketch15
pad13.setExpression("Length", "Params.pad13_length")
pad13.Reversed = True
doc.recompute()

body13 = doc.addObject("PartDesign::Body", "Body012")
body13.BaseFeature = body12
boolean = body5.newObject("PartDesign::Boolean", "Boolean")
boolean.Type = "Cut"
boolean.addObjects([body13])
doc.recompute()

boolean2 = body7.newObject("PartDesign::Boolean", "Boolean001")
boolean2.Type = "Cut"
boolean2.addObjects([body12])

doc.recompute()
